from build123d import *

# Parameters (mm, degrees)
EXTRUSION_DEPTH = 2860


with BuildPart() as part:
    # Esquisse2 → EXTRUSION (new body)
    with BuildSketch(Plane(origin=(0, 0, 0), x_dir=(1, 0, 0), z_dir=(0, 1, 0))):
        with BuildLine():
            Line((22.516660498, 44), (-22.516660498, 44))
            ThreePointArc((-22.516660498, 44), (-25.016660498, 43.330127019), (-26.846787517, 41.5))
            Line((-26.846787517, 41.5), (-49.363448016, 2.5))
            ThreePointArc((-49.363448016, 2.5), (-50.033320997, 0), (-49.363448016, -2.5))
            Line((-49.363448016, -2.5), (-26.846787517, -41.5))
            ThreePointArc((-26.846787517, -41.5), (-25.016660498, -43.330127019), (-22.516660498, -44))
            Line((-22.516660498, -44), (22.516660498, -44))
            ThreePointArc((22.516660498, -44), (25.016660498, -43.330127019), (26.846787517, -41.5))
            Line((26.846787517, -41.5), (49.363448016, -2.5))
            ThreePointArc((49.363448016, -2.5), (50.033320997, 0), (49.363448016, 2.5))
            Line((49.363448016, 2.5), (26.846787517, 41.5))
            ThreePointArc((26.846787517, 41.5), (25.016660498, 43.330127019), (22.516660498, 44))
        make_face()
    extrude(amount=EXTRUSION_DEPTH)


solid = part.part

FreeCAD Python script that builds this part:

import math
import FreeCAD as App
import Part
import Sketcher
from FreeCAD import Vector
Q = App.Units.Quantity

doc = App.newDocument("Part")
params = doc.addObject("Spreadsheet::Sheet", "Params")
for row, (alias, value) in enumerate([
    ("sketch1_radius", "5 mm"),
    ("pad1_length", "2860 mm"),
], start=1):
    params.set(f"A{row}", alias)
    params.set(f"B{row}", "=" + value)
    params.setAlias(f"B{row}", alias)

body = doc.addObject("PartDesign::Body", "Body")

# Sketch on XZ plane
sketch1 = body.newObject("Sketcher::SketchObject", "Sketch")
sketch1.AttachmentSupport = (doc.getObject("XZ_Plane"), [""])
sketch1.MapMode = "FlatFace"
sketch1.addGeometry(Part.LineSegment(Vector(23, -44, 0), Vector(-23, -44, 0)), False)
sketch1.addGeometry(Part.ArcOfCircle(Part.Circle(Vector(-23, -39, 0), Vector(0, 0, 1), 5), math.radians(-150), math.radians(-90)), False)
sketch1.addGeometry(Part.LineSegment(Vector(-27, -42, 0), Vector(-49, -2, 0)), False)
sketch1.addGeometry(Part.ArcOfCircle(Part.Circle(Vector(-45, 0, 0), Vector(0, 0, 1), 5), math.radians(150), math.radians(210)), False)
sketch1.addGeometry(Part.LineSegment(Vector(-49, 2, 0), Vector(-27, 42, 0)), False)
sketch1.addGeometry(Part.ArcOfCircle(Part.Circle(Vector(-23, 39, 0), Vector(0, 0, 1), 5), math.radians(90), math.radians(150)), False)
sketch1.addGeometry(Part.LineSegment(Vector(-23, 44, 0), Vector(23, 44, 0)), False)
sketch1.addGeometry(Part.ArcOfCircle(Part.Circle(Vector(23, 39, 0), Vector(0, 0, 1), 5), math.radians(30), math.radians(90)), False)
sketch1.addGeometry(Part.LineSegment(Vector(27, 42, 0), Vector(49, 2, 0)), False)
sketch1.addGeometry(Part.ArcOfCircle(Part.Circle(Vector(45, 0, 0), Vector(0, 0, 1), 5), math.radians(-30), math.radians(30)), False)
sketch1.addGeometry(Part.LineSegment(Vector(49, -2, 0), Vector(27, -42, 0)), False)
sketch1.addGeometry(Part.ArcOfCircle(Part.Circle(Vector(23, -39, 0), Vector(0, 0, 1), 5), math.radians(-90), math.radians(-30)), False)
sketch1.addConstraint(Sketcher.Constraint("Tangent", 0, 2, 1, 2))
sketch1.addConstraint(Sketcher.Constraint("Tangent", 1, 1, 2, 1))
sketch1.addConstraint(Sketcher.Constraint("Tangent", 2, 2, 3, 2))
sketch1.addConstraint(Sketcher.Constraint("Tangent", 3, 1, 4, 1))
sketch1.addConstraint(Sketcher.Constraint("Tangent", 4, 2, 5, 2))
sketch1.addConstraint(Sketcher.Constraint("Tangent", 5, 1, 6, 1))
sketch1.addConstraint(Sketcher.Constraint("Tangent", 6, 2, 7, 2))
sketch1.addConstraint(Sketcher.Constraint("Tangent", 7, 1, 8, 1))
sketch1.addConstraint(Sketcher.Constraint("Tangent", 8, 2, 9, 2))
sketch1.addConstraint(Sketcher.Constraint("Tangent", 9, 1, 10, 1))
sketch1.addConstraint(Sketcher.Constraint("Tangent", 10, 2, 11, 2))
sketch1.addConstraint(Sketcher.Constraint("Tangent", 11, 1, 0, 1))
sketch1.addConstraint(Sketcher.Constraint("Horizontal", 0))
sketch1.addConstraint(Sketcher.Constraint("Horizontal", 6))
sketch1.addConstraint(Sketcher.Constraint("Equal", 1, 3))
sketch1.addConstraint(Sketcher.Constraint("Equal", 3, 5))
sketch1.addConstraint(Sketcher.Constraint("Equal", 5, 7))
sketch1.addConstraint(Sketcher.Constraint("Equal", 7, 9))
sketch1.addConstraint(Sketcher.Constraint("Equal", 9, 11))
sketch1.addConstraint(Sketcher.Constraint("Symmetric", 1, 3, 7, 3, -1, 1))
sketch1.addConstraint(Sketcher.Constraint("Symmetric", 3, 3, 9, 3, -1, 1))
sketch1.addConstraint(Sketcher.Constraint("Symmetric", 4, 2, 7, 1, -2))
sketch1.addConstraint(Sketcher.Constraint("Parallel", 4, 10))
sketch1.addConstraint(Sketcher.Constraint("Radius", 1, 5.0))
sketch1.addConstraint(Sketcher.Constraint("Angle", 2, Q("120 deg")))
sketch1.addConstraint(Sketcher.Constraint("DistanceY", 1, 3, -1, 1, 39.0))
sketch1.addConstraint(Sketcher.Constraint("DistanceX", 0, 2, 0, 1, 45.033321))
sketch1.setExpression("Constraints[23]", "Params.sketch1_radius")
pad1 = body.newObject("PartDesign::Pad", "Pad")
pad1.Profile = sketch1
pad1.setExpression("Length", "Params.pad1_length")
pad1.Reversed = True

doc.recompute()
